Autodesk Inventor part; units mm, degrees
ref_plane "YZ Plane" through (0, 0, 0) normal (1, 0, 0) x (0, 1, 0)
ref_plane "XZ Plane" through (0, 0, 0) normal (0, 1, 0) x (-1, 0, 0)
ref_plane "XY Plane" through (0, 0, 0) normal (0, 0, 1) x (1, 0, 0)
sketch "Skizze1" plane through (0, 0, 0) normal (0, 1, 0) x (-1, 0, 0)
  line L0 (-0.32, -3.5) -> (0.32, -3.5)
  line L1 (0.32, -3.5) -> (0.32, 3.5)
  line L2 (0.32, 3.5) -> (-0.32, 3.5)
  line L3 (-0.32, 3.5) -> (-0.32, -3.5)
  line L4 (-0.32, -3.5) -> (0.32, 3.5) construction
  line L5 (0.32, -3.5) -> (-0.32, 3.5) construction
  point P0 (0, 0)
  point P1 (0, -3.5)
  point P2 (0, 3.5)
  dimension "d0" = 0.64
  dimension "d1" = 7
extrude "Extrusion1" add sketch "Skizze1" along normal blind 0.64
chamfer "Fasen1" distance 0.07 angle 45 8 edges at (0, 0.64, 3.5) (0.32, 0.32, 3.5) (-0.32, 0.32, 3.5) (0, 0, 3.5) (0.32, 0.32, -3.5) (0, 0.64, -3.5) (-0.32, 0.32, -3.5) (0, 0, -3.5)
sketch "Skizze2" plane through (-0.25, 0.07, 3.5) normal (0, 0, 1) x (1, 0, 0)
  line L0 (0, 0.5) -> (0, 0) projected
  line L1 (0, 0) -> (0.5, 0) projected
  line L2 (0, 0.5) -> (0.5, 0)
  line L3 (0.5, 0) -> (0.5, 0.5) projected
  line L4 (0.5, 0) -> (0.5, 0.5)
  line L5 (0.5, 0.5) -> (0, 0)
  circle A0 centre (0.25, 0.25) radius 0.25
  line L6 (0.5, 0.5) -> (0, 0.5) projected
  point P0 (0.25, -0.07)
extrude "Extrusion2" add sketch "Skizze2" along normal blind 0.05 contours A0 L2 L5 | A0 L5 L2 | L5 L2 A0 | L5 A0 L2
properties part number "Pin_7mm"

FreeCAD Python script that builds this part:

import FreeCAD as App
import Part
import Sketcher


def edges_at(feature, points):
    """Names of the edges that pass closest to the given points."""
    edges = feature.Shape.Edges
    near = lambda p: min(range(len(edges)), key=lambda i: edges[i].distToShape(Part.Vertex(*p))[0])
    return sorted({f"Edge{near(p) + 1}" for p in points})

doc = App.newDocument("Part")
params = doc.addObject("Spreadsheet::Sheet", "Params")
for row, (alias, value) in enumerate([
    ("sketch1_height", "7 mm"),
    ("sketch1_width", "0.64 mm"),
    ("pad1_length", "0.64 mm"),
    ("chamfer_size", "0.07 mm"),
    ("sketch2_diameter", "0.5 mm"),
    ("pad2_length", "0.05 mm"),
], start=1):
    params.set(f"A{row}", alias)
    params.set(f"B{row}", "=" + value)
    params.setAlias(f"B{row}", alias)

body = doc.addObject("PartDesign::Body", "Body")

# Sketch on XZ plane
sketch1 = body.newObject("Sketcher::SketchObject", "Sketch")
sketch1.AttachmentSupport = (doc.getObject("XZ_Plane"), [""])
sketch1.MapMode = "FlatFace"
sketch1.addGeometry(Part.LineSegment(App.Vector(0.3, 3.5, 0), App.Vector(0.3, -3.5, 0)), False)
sketch1.addGeometry(Part.LineSegment(App.Vector(0.3, -3.5, 0), App.Vector(-0.3, -3.5, 0)), False)
sketch1.addGeometry(Part.LineSegment(App.Vector(-0.3, -3.5, 0), App.Vector(-0.3, 3.5, 0)), False)
sketch1.addGeometry(Part.LineSegment(App.Vector(-0.3, 3.5, 0), App.Vector(0.3, 3.5, 0)), False)
sketch1.addConstraint(Sketcher.Constraint("Coincident", 0, 2, 1, 1))
sketch1.addConstraint(Sketcher.Constraint("Coincident", 1, 2, 2, 1))
sketch1.addConstraint(Sketcher.Constraint("Coincident", 2, 2, 3, 1))
sketch1.addConstraint(Sketcher.Constraint("Coincident", 3, 2, 0, 1))
sketch1.addConstraint(Sketcher.Constraint("Vertical", 0))
sketch1.addConstraint(Sketcher.Constraint("Horizontal", 1))
sketch1.addConstraint(Sketcher.Constraint("Vertical", 2))
sketch1.addConstraint(Sketcher.Constraint("Horizontal", 3))
sketch1.addConstraint(Sketcher.Constraint("Symmetric", 0, 2, 2, 2, -1, 1))
sketch1.addConstraint(Sketcher.Constraint("DistanceY", 0, 2, 0, 1, 7.0))
sketch1.addConstraint(Sketcher.Constraint("DistanceX", 1, 2, 1, 1, 0.64))
sketch1.setExpression("Constraints[9]", "Params.sketch1_height")
sketch1.setExpression("Constraints[10]", "Params.sketch1_width")
pad1 = body.newObject("PartDesign::Pad", "Pad")
pad1.Profile = sketch1
pad1.setExpression("Length", "Params.pad1_length")
pad1.Reversed = True
doc.recompute()

chamfer = body.newObject("PartDesign::Chamfer", "Chamfer")
chamfer.Base = (pad1, edges_at(pad1, [
    (0, 0.64, 3.5),
    (0.32, 0.32, 3.5),
    (-0.32, 0.32, 3.5),
    (0, 0, 3.5),
    (0.32, 0.32, -3.5),
    (0, 0.64, -3.5),
    (-0.32, 0.32, -3.5),
    (0, 0, -3.5),
]))
chamfer.setExpression("Size", "Params.chamfer_size")

# Sketch on XY plane
sketch2 = body.newObject("Sketcher::SketchObject", "Sketch001")
sketch2.AttachmentSupport = (doc.getObject("XY_Plane"), [""])
sketch2.MapMode = "FlatFace"
sketch2.AttachmentOffset = App.Placement(App.Vector(0, 0, 3.5), App.Rotation())
sketch2.addGeometry(Part.Circle(App.Vector(0, 0.32, 0), App.Vector(0, 0, 1), 0.25), False)
sketch2.addConstraint(Sketcher.Constraint("PointOnObject", 0, 3, -2))
sketch2.addConstraint(Sketcher.Constraint("Diameter", 0, 0.5))
sketch2.addConstraint(Sketcher.Constraint("DistanceY", -1, 1, 0, 3, 0.32))
sketch2.setExpression("Constraints[1]", "Params.sketch2_diameter")
pad2 = body.newObject("PartDesign::Pad", "Pad001")
pad2.Profile = sketch2
pad2.setExpression("Length", "Params.pad2_length")

doc.recompute()
